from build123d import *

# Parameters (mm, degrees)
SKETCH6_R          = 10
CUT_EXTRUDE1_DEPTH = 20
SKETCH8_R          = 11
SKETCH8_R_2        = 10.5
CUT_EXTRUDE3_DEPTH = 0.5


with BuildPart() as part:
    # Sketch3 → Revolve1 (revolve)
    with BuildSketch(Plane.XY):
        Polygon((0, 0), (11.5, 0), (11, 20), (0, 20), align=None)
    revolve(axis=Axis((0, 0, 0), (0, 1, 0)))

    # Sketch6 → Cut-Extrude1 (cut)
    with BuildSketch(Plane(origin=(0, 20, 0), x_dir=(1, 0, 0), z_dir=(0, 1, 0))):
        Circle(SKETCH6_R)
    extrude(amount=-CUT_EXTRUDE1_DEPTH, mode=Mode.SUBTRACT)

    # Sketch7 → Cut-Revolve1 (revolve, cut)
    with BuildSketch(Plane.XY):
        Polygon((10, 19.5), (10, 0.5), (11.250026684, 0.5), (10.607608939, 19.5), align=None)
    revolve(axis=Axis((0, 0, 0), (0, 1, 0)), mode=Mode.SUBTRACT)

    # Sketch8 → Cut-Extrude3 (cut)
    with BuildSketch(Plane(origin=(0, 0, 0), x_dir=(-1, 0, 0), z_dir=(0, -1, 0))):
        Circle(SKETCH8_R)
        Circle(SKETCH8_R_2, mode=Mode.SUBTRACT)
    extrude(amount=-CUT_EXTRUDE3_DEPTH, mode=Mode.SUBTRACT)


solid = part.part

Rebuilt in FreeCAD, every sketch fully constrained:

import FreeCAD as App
import Part
import Sketcher

V = App.Vector

doc = App.newDocument("Part")
body = doc.addObject("PartDesign::Body", "Body")
body.AllowCompound = True

# Sketch on XY plane
sketch1 = body.newObject("Sketcher::SketchObject", "Sketch")
sketch1.AttachmentSupport = (doc.getObject("XY_Plane"), [""])
sketch1.MapMode = "FlatFace"
sketch1.addGeometry(Part.LineSegment(V(0, 0, 0), V(12, 0, 0)), False)
sketch1.addGeometry(Part.LineSegment(V(12, 0, 0), V(11, 20, 0)), False)
sketch1.addGeometry(Part.LineSegment(V(11, 20, 0), V(0, 20, 0)), False)
sketch1.addGeometry(Part.LineSegment(V(0, 20, 0), V(0, 0, 0)), False)
sketch1.addConstraint(Sketcher.Constraint("Coincident", 0, 2, 1, 1))
sketch1.addConstraint(Sketcher.Constraint("Coincident", 1, 2, 2, 1))
sketch1.addConstraint(Sketcher.Constraint("Coincident", 2, 2, 3, 1))
sketch1.addConstraint(Sketcher.Constraint("Coincident", 3, 2, 0, 1))
sketch1.addConstraint(Sketcher.Constraint("Horizontal", 0))
sketch1.addConstraint(Sketcher.Constraint("Horizontal", 2))
sketch1.addConstraint(Sketcher.Constraint("Vertical", 3))
sketch1.addConstraint(Sketcher.Constraint("Coincident", 3, 2, -1, 1))
sketch1.addConstraint(Sketcher.Constraint("DistanceX", 2, 2, 2, 1, 11.0))
sketch1.addConstraint(Sketcher.Constraint("DistanceY", 3, 2, 3, 1, 20.0))
sketch1.addConstraint(Sketcher.Constraint("DistanceX", 0, 1, 0, 2, 11.5))
revolution = body.newObject("PartDesign::Revolution", "Revolution")
revolution.Profile = sketch1
revolution.ReferenceAxis = (sketch1, ["V_Axis"])
revolution.Angle = 360

# Sketch on XZ plane
sketch2 = body.newObject("Sketcher::SketchObject", "Sketch001")
sketch2.AttachmentSupport = (doc.getObject("XZ_Plane"), [""])
sketch2.MapMode = "FlatFace"
sketch2.AttachmentOffset = App.Placement(V(0, 0, -20), App.Rotation())
sketch2.addGeometry(Part.Circle(V(0, 0, 0), V(0, 0, 1), 10), False)
sketch2.addConstraint(Sketcher.Constraint("Coincident", 0, 3, -1, 1))
sketch2.addConstraint(Sketcher.Constraint("Diameter", 0, 20.0))
pocket1 = body.newObject("PartDesign::Pocket", "Pocket")
pocket1.Profile = sketch2
pocket1.Length = 20
pocket1.Reversed = True

# Sketch on XY plane
sketch3 = body.newObject("Sketcher::SketchObject", "Sketch002")
sketch3.AttachmentSupport = (doc.getObject("XY_Plane"), [""])
sketch3.MapMode = "FlatFace"
sketch3.addGeometry(Part.LineSegment(V(10, 19.5, 0), V(10, 0.5, 0)), False)
sketch3.addGeometry(Part.LineSegment(V(10, 0.5, 0), V(11.3, 0.5, 0)), False)
sketch3.addGeometry(Part.LineSegment(V(11.3, 0.5, 0), V(10.6, 19.5, 0)), False)
sketch3.addGeometry(Part.LineSegment(V(10.6, 19.5, 0), V(10, 19.5, 0)), False)
sketch3.addConstraint(Sketcher.Constraint("Coincident", 0, 2, 1, 1))
sketch3.addConstraint(Sketcher.Constraint("Coincident", 1, 2, 2, 1))
sketch3.addConstraint(Sketcher.Constraint("Coincident", 2, 2, 3, 1))
sketch3.addConstraint(Sketcher.Constraint("Coincident", 3, 2, 0, 1))
sketch3.addConstraint(Sketcher.Constraint("Vertical", 0))
sketch3.addConstraint(Sketcher.Constraint("Horizontal", 1))
sketch3.addConstraint(Sketcher.Constraint("Horizontal", 3))
sketch3.addConstraint(Sketcher.Constraint("DistanceY", 0, 2, 0, 1, 19.0))
sketch3.addConstraint(Sketcher.Constraint("DistanceX", -1, 1, 0, 2, 10.0))
sketch3.addConstraint(Sketcher.Constraint("DistanceY", -1, 1, 0, 2, 0.5))
sketch3.addConstraint(Sketcher.Constraint("DistanceX", 3, 2, 3, 1, 0.607609))
sketch3.addConstraint(Sketcher.Constraint("DistanceX", 1, 1, 1, 2, 1.250027))
groove = body.newObject("PartDesign::Groove", "Groove")
groove.Profile = sketch3
groove.ReferenceAxis = (sketch3, ["V_Axis"])
groove.Angle = 360

# Sketch on XZ plane
sketch4 = body.newObject("Sketcher::SketchObject", "Sketch003")
sketch4.AttachmentSupport = (doc.getObject("XZ_Plane"), [""])
sketch4.MapMode = "FlatFace"
sketch4.addGeometry(Part.Circle(V(0, 0, 0), V(0, 0, 1), 11), False)
sketch4.addGeometry(Part.Circle(V(0, 0, 0), V(0, 0, 1), 10), False)
sketch4.addConstraint(Sketcher.Constraint("Coincident", 0, 3, -1, 1))
sketch4.addConstraint(Sketcher.Constraint("Coincident", 1, 3, -1, 1))
sketch4.addConstraint(Sketcher.Constraint("Diameter", 0, 22.0))
sketch4.addConstraint(Sketcher.Constraint("Diameter", 1, 21.0))
pocket2 = body.newObject("PartDesign::Pocket", "Pocket001")
pocket2.Profile = sketch4
pocket2.Length = 0.5

doc.recompute()
